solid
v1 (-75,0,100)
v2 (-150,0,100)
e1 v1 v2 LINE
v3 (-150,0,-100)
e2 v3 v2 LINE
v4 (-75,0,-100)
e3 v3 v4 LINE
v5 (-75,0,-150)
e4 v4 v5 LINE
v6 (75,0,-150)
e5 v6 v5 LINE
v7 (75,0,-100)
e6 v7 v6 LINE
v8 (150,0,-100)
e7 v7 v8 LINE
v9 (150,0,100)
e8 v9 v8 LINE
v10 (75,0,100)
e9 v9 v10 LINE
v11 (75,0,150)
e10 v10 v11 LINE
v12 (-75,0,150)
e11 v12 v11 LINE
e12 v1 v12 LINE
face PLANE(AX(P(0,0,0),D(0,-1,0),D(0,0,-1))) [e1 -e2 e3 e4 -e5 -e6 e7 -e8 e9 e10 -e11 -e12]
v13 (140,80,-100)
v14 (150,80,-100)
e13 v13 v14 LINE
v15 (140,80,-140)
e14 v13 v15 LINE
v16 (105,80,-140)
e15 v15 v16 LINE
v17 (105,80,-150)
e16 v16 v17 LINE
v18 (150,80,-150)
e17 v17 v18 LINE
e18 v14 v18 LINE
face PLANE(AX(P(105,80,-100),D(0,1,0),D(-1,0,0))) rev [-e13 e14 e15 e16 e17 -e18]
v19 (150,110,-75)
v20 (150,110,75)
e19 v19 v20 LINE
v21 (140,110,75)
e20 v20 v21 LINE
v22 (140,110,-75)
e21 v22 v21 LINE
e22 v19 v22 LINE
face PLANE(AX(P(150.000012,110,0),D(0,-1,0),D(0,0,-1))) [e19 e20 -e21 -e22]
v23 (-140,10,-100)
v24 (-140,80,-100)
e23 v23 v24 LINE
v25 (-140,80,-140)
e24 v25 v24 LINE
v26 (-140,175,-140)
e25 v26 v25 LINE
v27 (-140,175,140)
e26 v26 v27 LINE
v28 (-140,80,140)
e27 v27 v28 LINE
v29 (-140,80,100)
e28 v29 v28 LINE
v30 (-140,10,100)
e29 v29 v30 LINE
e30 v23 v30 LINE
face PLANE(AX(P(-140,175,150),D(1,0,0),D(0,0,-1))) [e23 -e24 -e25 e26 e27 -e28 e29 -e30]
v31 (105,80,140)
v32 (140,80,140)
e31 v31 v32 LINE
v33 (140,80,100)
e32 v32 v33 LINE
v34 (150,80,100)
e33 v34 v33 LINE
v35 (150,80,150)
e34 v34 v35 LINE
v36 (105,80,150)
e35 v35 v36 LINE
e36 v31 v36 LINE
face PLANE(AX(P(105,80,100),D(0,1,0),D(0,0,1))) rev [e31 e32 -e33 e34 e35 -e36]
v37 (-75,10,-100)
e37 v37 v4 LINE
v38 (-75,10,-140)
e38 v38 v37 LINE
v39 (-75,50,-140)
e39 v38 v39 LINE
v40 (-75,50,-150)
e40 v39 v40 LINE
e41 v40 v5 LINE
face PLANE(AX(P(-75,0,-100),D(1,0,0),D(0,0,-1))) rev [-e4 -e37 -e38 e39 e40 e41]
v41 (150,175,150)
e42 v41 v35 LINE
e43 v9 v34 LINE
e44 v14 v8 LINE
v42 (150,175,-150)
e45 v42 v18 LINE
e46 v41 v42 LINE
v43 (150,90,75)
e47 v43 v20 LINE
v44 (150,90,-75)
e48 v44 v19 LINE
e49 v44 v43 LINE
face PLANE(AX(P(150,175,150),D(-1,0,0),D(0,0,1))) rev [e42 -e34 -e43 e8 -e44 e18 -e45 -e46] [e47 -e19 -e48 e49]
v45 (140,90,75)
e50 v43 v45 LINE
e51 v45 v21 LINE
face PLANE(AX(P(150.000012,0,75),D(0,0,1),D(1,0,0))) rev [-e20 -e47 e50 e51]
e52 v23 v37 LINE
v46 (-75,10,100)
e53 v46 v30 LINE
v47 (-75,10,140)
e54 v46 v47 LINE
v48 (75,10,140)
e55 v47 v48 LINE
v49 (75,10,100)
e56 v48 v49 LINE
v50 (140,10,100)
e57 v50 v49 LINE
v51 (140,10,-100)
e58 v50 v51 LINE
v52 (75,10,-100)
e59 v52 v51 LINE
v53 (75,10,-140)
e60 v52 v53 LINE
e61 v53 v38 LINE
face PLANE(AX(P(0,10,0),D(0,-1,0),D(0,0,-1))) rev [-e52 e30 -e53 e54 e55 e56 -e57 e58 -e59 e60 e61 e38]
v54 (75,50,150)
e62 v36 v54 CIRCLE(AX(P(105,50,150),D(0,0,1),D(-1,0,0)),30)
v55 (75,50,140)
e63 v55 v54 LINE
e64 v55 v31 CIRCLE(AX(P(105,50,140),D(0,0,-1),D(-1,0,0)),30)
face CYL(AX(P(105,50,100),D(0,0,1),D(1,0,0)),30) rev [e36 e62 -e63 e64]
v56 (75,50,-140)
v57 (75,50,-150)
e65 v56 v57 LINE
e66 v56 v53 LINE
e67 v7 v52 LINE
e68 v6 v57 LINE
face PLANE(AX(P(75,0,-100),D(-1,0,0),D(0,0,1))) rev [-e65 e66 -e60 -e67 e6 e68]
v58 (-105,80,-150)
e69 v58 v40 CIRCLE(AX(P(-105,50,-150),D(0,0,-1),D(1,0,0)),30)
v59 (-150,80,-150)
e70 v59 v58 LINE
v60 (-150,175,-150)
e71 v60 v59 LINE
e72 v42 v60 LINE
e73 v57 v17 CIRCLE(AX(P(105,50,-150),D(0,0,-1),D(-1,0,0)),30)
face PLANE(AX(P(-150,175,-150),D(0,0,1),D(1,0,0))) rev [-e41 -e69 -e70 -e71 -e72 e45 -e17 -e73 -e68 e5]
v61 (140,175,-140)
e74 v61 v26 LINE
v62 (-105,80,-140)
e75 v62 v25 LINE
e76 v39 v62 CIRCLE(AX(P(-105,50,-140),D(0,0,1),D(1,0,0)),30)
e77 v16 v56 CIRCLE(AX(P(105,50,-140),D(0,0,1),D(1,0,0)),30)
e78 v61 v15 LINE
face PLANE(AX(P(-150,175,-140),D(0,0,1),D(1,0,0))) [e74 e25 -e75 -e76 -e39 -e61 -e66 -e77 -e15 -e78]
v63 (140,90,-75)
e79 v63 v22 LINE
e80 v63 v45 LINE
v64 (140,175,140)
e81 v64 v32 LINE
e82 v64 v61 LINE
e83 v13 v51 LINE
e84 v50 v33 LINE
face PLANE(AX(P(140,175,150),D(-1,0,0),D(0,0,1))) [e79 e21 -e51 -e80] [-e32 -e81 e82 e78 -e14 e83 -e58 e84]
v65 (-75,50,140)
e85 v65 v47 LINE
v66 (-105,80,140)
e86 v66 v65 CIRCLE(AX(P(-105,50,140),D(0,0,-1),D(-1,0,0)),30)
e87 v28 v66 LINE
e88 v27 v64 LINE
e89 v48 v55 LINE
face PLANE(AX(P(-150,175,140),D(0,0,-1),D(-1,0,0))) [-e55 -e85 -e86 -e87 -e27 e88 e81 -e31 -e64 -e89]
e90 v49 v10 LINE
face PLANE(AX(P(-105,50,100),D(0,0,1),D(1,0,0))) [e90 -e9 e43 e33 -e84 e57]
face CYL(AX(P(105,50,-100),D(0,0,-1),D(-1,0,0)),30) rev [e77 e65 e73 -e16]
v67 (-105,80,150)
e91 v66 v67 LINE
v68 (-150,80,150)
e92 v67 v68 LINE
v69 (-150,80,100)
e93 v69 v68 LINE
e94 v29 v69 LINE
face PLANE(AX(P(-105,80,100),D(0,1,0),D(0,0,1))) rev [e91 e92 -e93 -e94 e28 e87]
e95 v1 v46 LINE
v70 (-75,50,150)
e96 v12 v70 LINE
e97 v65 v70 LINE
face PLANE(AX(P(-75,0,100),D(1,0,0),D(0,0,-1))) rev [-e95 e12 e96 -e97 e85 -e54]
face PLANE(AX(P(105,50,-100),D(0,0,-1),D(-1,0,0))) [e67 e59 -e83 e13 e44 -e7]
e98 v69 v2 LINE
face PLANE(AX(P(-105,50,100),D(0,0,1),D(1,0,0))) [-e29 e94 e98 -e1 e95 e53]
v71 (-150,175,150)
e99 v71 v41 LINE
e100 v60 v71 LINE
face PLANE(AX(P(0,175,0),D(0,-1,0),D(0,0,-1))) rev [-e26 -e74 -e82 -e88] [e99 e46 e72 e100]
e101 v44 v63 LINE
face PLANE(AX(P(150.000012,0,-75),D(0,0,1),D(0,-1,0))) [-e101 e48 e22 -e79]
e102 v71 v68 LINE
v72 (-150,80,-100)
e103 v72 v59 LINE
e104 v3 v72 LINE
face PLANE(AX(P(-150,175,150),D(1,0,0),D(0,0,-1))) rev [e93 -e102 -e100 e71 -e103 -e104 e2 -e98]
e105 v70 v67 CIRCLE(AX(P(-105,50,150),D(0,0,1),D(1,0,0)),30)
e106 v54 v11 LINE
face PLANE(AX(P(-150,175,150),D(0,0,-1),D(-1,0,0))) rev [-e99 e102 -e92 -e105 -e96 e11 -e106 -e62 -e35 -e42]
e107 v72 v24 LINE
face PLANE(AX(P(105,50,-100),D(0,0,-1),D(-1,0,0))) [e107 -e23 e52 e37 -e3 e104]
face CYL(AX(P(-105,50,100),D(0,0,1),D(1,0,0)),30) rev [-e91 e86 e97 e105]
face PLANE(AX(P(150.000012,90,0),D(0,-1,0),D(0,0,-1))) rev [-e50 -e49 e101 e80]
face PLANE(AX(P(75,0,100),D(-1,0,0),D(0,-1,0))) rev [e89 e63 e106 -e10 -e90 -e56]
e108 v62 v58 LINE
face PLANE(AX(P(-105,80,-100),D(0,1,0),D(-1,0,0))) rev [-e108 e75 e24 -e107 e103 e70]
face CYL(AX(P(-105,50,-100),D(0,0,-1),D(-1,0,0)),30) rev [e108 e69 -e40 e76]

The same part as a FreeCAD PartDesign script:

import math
import FreeCAD as App
import Part
import Sketcher
from FreeCAD import Vector


def faces_at(feature, points):
    """Names of the faces that lie closest to the given points."""
    faces = feature.Shape.Faces
    near = lambda p: min(range(len(faces)), key=lambda i: faces[i].distToShape(Part.Vertex(*p))[0])
    return sorted({f"Face{near(p) + 1}" for p in points})

doc = App.newDocument("Part")
body = doc.addObject("PartDesign::Body", "Body")

# Sketch on XZ plane
sketch1 = doc.addObject("Sketcher::SketchObject", "Sketch")
body.addObject(sketch1)
sketch1.AttachmentSupport = (doc.XZ_Plane, [""])
sketch1.MapMode = "FlatFace"
sketch1.addGeometry(Part.LineSegment(Vector(-150, -150, 0), Vector(-150, 150, 0)), False)
sketch1.addGeometry(Part.LineSegment(Vector(-150, 150, 0), Vector(150, 150, 0)), False)
sketch1.addGeometry(Part.LineSegment(Vector(150, 150, 0), Vector(150, -150, 0)), False)
sketch1.addGeometry(Part.LineSegment(Vector(150, -150, 0), Vector(-150, -150, 0)), False)
sketch1.addConstraint(Sketcher.Constraint("Coincident", 0, 2, 1, 1))
sketch1.addConstraint(Sketcher.Constraint("Coincident", 1, 2, 2, 1))
sketch1.addConstraint(Sketcher.Constraint("Coincident", 2, 2, 3, 1))
sketch1.addConstraint(Sketcher.Constraint("Coincident", 3, 2, 0, 1))
sketch1.addConstraint(Sketcher.Constraint("Vertical", 0))
sketch1.addConstraint(Sketcher.Constraint("Horizontal", 1))
sketch1.addConstraint(Sketcher.Constraint("Vertical", 2))
sketch1.addConstraint(Sketcher.Constraint("Horizontal", 3))
sketch1.addConstraint(Sketcher.Constraint("Symmetric", 0, 2, 2, 2, -1, 1))
sketch1.addConstraint(Sketcher.Constraint("Equal", 3, 0))
sketch1.addConstraint(Sketcher.Constraint("DistanceX", 1, 1, 1, 2, 300.0))
pad1 = doc.addObject("PartDesign::Pad", "Pad")
body.addObject(pad1)
pad1.Profile = sketch1
pad1.Length = 175
pad1.Reversed = True
doc.recompute()

thickness = doc.addObject("PartDesign::Thickness", "Thickness")
body.addObject(thickness)
thickness.Base = (pad1, faces_at(pad1, [(0, 175, 0)]))
thickness.Value = 10
thickness.Reversed = True
thickness.Join = "Intersection"

# Sketch on XY plane
sketch2 = doc.addObject("Sketcher::SketchObject", "Sketch001")
body.addObject(sketch2)
sketch2.AttachmentSupport = (doc.XY_Plane, [""])
sketch2.MapMode = "FlatFace"
sketch2.AttachmentOffset = App.Placement(Vector(0, 0, 150), App.Rotation())
sketch2.addGeometry(Part.LineSegment(Vector(75, 50, 0), Vector(75, 0, 0)), False)
sketch2.addGeometry(Part.LineSegment(Vector(75, 0, 0), Vector(-75, 0, 0)), False)
sketch2.addGeometry(Part.LineSegment(Vector(-75, 0, 0), Vector(-75, 50, 0)), False)
sketch2.addGeometry(Part.ArcOfCircle(Part.Circle(Vector(-105, 50, 0), Vector(0, 0, 1), 30), math.radians(0), math.radians(90)), False)
sketch2.addGeometry(Part.LineSegment(Vector(-105, 80, 0), Vector(-150, 80, 0)), False)
sketch2.addGeometry(Part.LineSegment(Vector(-150, 80, 0), Vector(-150, -5, 0)), False)
sketch2.addGeometry(Part.LineSegment(Vector(-150, -5, 0), Vector(150, -5, 0)), False)
sketch2.addGeometry(Part.LineSegment(Vector(150, -5, 0), Vector(150, 80, 0)), False)
sketch2.addGeometry(Part.LineSegment(Vector(150, 80, 0), Vector(105, 80, 0)), False)
sketch2.addGeometry(Part.ArcOfCircle(Part.Circle(Vector(105, 50, 0), Vector(0, 0, 1), 30), math.radians(90), math.radians(180)), False)
sketch2.addConstraint(Sketcher.Constraint("Coincident", 0, 2, 1, 1))
sketch2.addConstraint(Sketcher.Constraint("Coincident", 1, 2, 2, 1))
sketch2.addConstraint(Sketcher.Constraint("Tangent", 2, 2, 3, 1))
sketch2.addConstraint(Sketcher.Constraint("Tangent", 3, 2, 4, 1))
sketch2.addConstraint(Sketcher.Constraint("Coincident", 4, 2, 5, 1))
sketch2.addConstraint(Sketcher.Constraint("Coincident", 5, 2, 6, 1))
sketch2.addConstraint(Sketcher.Constraint("Coincident", 6, 2, 7, 1))
sketch2.addConstraint(Sketcher.Constraint("Coincident", 7, 2, 8, 1))
sketch2.addConstraint(Sketcher.Constraint("Tangent", 8, 2, 9, 1))
sketch2.addConstraint(Sketcher.Constraint("Tangent", 9, 2, 0, 1))
sketch2.addConstraint(Sketcher.Constraint("Vertical", 0))
sketch2.addConstraint(Sketcher.Constraint("Horizontal", 1))
sketch2.addConstraint(Sketcher.Constraint("Vertical", 2))
sketch2.addConstraint(Sketcher.Constraint("Horizontal", 4))
sketch2.addConstraint(Sketcher.Constraint("Vertical", 5))
sketch2.addConstraint(Sketcher.Constraint("Horizontal", 6))
sketch2.addConstraint(Sketcher.Constraint("Vertical", 7))
sketch2.addConstraint(Sketcher.Constraint("Horizontal", 8))
sketch2.addConstraint(Sketcher.Constraint("Equal", 3, 9))
sketch2.addConstraint(Sketcher.Constraint("Symmetric", 0, 2, 1, 2, -1, 1))
sketch2.addConstraint(Sketcher.Constraint("Symmetric", 4, 2, 7, 2, -2))
sketch2.addConstraint(Sketcher.Constraint("Radius", 3, 30.0))
sketch2.addConstraint(Sketcher.Constraint("DistanceX", 1, 2, 1, 1, 150.0))
sketch2.addConstraint(Sketcher.Constraint("DistanceX", 4, 2, 4, 1, 45.0))
sketch2.addConstraint(Sketcher.Constraint("DistanceY", 0, 2, 0, 1, 50.0))
sketch2.addConstraint(Sketcher.Constraint("DistanceY", 5, 2, 5, 1, 85.0))
pocket1 = doc.addObject("PartDesign::Pocket", "Pocket")
body.addObject(pocket1)
pocket1.Profile = sketch2
pocket1.Length = 50

# Sketch on XY plane
sketch3 = doc.addObject("Sketcher::SketchObject", "Sketch002")
body.addObject(sketch3)
sketch3.AttachmentSupport = (doc.XY_Plane, [""])
sketch3.MapMode = "FlatFace"
sketch3.AttachmentOffset = App.Placement(Vector(0, 0, -100), App.Rotation())
sketch3.addGeometry(Part.LineSegment(Vector(-75, 50, 0), Vector(-75, 0, 0)), False)
sketch3.addGeometry(Part.LineSegment(Vector(-75, 0, 0), Vector(75, 0, 0)), False)
sketch3.addGeometry(Part.LineSegment(Vector(75, 0, 0), Vector(75, 50, 0)), False)
sketch3.addGeometry(Part.ArcOfCircle(Part.Circle(Vector(105, 50, 0), Vector(0, 0, 1), 30), math.radians(90), math.radians(180)), False)
sketch3.addGeometry(Part.LineSegment(Vector(105, 80, 0), Vector(150, 80, 0)), False)
sketch3.addGeometry(Part.LineSegment(Vector(150, 80, 0), Vector(150, -5, 0)), False)
sketch3.addGeometry(Part.LineSegment(Vector(150, -5, 0), Vector(-150, -5, 0)), False)
sketch3.addGeometry(Part.LineSegment(Vector(-150, -5, 0), Vector(-150, 80, 0)), False)
sketch3.addGeometry(Part.LineSegment(Vector(-150, 80, 0), Vector(-105, 80, 0)), False)
sketch3.addGeometry(Part.ArcOfCircle(Part.Circle(Vector(-105, 50, 0), Vector(0, 0, 1), 30), math.radians(0), math.radians(90)), False)
sketch3.addConstraint(Sketcher.Constraint("Coincident", 0, 2, 1, 1))
sketch3.addConstraint(Sketcher.Constraint("Coincident", 1, 2, 2, 1))
sketch3.addConstraint(Sketcher.Constraint("Tangent", 2, 2, 3, 2))
sketch3.addConstraint(Sketcher.Constraint("Tangent", 3, 1, 4, 1))
sketch3.addConstraint(Sketcher.Constraint("Coincident", 4, 2, 5, 1))
sketch3.addConstraint(Sketcher.Constraint("Coincident", 5, 2, 6, 1))
sketch3.addConstraint(Sketcher.Constraint("Coincident", 6, 2, 7, 1))
sketch3.addConstraint(Sketcher.Constraint("Coincident", 7, 2, 8, 1))
sketch3.addConstraint(Sketcher.Constraint("Tangent", 8, 2, 9, 2))
sketch3.addConstraint(Sketcher.Constraint("Tangent", 9, 1, 0, 1))
sketch3.addConstraint(Sketcher.Constraint("Vertical", 0))
sketch3.addConstraint(Sketcher.Constraint("Horizontal", 1))
sketch3.addConstraint(Sketcher.Constraint("Vertical", 2))
sketch3.addConstraint(Sketcher.Constraint("Horizontal", 4))
sketch3.addConstraint(Sketcher.Constraint("Vertical", 5))
sketch3.addConstraint(Sketcher.Constraint("Horizontal", 6))
sketch3.addConstraint(Sketcher.Constraint("Vertical", 7))
sketch3.addConstraint(Sketcher.Constraint("Horizontal", 8))
sketch3.addConstraint(Sketcher.Constraint("Equal", 3, 9))
sketch3.addConstraint(Sketcher.Constraint("Symmetric", 0, 2, 1, 2, -1, 1))
sketch3.addConstraint(Sketcher.Constraint("Symmetric", 4, 2, 7, 2, -2))
sketch3.addConstraint(Sketcher.Constraint("Radius", 3, 30.0))
sketch3.addConstraint(Sketcher.Constraint("DistanceX", 1, 1, 1, 2, 150.0))
sketch3.addConstraint(Sketcher.Constraint("DistanceX", 4, 1, 4, 2, 45.0))
sketch3.addConstraint(Sketcher.Constraint("DistanceY", 0, 2, 0, 1, 50.0))
sketch3.addConstraint(Sketcher.Constraint("DistanceY", 5, 2, 5, 1, 85.0))
pocket2 = doc.addObject("PartDesign::Pocket", "Pocket001")
body.addObject(pocket2)
pocket2.Profile = sketch3
pocket2.Length = 50

# Sketch on YZ plane
sketch4 = doc.addObject("Sketcher::SketchObject", "Sketch003")
body.addObject(sketch4)
sketch4.AttachmentSupport = (doc.YZ_Plane, [""])
sketch4.MapMode = "FlatFace"
sketch4.AttachmentOffset = App.Placement(Vector(0, 0, 150), App.Rotation())
sketch4.addGeometry(Part.LineSegment(Vector(110, 75, 0), Vector(90, 75, 0)), False)
sketch4.addGeometry(Part.LineSegment(Vector(90, 75, 0), Vector(90, -75, 0)), False)
sketch4.addGeometry(Part.LineSegment(Vector(90, -75, 0), Vector(110, -75, 0)), False)
sketch4.addGeometry(Part.LineSegment(Vector(110, -75, 0), Vector(110, 75, 0)), False)
sketch4.addConstraint(Sketcher.Constraint("Coincident", 0, 2, 1, 1))
sketch4.addConstraint(Sketcher.Constraint("Coincident", 1, 2, 2, 1))
sketch4.addConstraint(Sketcher.Constraint("Coincident", 2, 2, 3, 1))
sketch4.addConstraint(Sketcher.Constraint("Coincident", 3, 2, 0, 1))
sketch4.addConstraint(Sketcher.Constraint("Horizontal", 0))
sketch4.addConstraint(Sketcher.Constraint("Vertical", 1))
sketch4.addConstraint(Sketcher.Constraint("Horizontal", 2))
sketch4.addConstraint(Sketcher.Constraint("Vertical", 3))
sketch4.addConstraint(Sketcher.Constraint("DistanceX", 0, 2, 0, 1, 20.0))
sketch4.addConstraint(Sketcher.Constraint("DistanceY", 1, 2, 1, 1, 150.0))
sketch4.addConstraint(Sketcher.Constraint("DistanceX", -1, 1, 0, 2, 90.0))
sketch4.addConstraint(Sketcher.Constraint("DistanceY", -1, 1, 0, 2, 75.0))
pocket3 = doc.addObject("PartDesign::Pocket", "Pocket002")
body.addObject(pocket3)
pocket3.Profile = sketch4
pocket3.Type = "UpToFirst"

# Sketch on YZ plane
sketch5 = doc.addObject("Sketcher::SketchObject", "Sketch004")
body.addObject(sketch5)
sketch5.AttachmentSupport = (doc.YZ_Plane, [""])
sketch5.MapMode = "FlatFace"
sketch5.AttachmentOffset = App.Placement(Vector(0, 0, 150), App.Rotation())
sketch5.addGeometry(Part.LineSegment(Vector(110, 75, 0), Vector(90, 75, 0)), False)
sketch5.addGeometry(Part.LineSegment(Vector(90, 75, 0), Vector(90, -75, 0)), False)
sketch5.addGeometry(Part.LineSegment(Vector(90, -75, 0), Vector(110, -75, 0)), False)
sketch5.addGeometry(Part.LineSegment(Vector(110, -75, 0), Vector(110, 75, 0)), False)
sketch5.addConstraint(Sketcher.Constraint("Coincident", 0, 2, 1, 1))
sketch5.addConstraint(Sketcher.Constraint("Coincident", 1, 2, 2, 1))
sketch5.addConstraint(Sketcher.Constraint("Coincident", 2, 2, 3, 1))
sketch5.addConstraint(Sketcher.Constraint("Coincident", 3, 2, 0, 1))
sketch5.addConstraint(Sketcher.Constraint("Horizontal", 0))
sketch5.addConstraint(Sketcher.Constraint("Vertical", 1))
sketch5.addConstraint(Sketcher.Constraint("Horizontal", 2))
sketch5.addConstraint(Sketcher.Constraint("Vertical", 3))
sketch5.addConstraint(Sketcher.Constraint("DistanceX", 0, 2, 0, 1, 20.0))
sketch5.addConstraint(Sketcher.Constraint("DistanceY", 1, 2, 1, 1, 150.0))
sketch5.addConstraint(Sketcher.Constraint("DistanceX", -1, 1, 0, 2, 90.0))
sketch5.addConstraint(Sketcher.Constraint("DistanceY", -1, 1, 0, 2, 75.0))
pocket4 = doc.addObject("PartDesign::Pocket", "Pocket003")
body.addObject(pocket4)
pocket4.Profile = sketch5
pocket4.Length = 379.318649
pocket4.Reversed = True

doc.recompute()
